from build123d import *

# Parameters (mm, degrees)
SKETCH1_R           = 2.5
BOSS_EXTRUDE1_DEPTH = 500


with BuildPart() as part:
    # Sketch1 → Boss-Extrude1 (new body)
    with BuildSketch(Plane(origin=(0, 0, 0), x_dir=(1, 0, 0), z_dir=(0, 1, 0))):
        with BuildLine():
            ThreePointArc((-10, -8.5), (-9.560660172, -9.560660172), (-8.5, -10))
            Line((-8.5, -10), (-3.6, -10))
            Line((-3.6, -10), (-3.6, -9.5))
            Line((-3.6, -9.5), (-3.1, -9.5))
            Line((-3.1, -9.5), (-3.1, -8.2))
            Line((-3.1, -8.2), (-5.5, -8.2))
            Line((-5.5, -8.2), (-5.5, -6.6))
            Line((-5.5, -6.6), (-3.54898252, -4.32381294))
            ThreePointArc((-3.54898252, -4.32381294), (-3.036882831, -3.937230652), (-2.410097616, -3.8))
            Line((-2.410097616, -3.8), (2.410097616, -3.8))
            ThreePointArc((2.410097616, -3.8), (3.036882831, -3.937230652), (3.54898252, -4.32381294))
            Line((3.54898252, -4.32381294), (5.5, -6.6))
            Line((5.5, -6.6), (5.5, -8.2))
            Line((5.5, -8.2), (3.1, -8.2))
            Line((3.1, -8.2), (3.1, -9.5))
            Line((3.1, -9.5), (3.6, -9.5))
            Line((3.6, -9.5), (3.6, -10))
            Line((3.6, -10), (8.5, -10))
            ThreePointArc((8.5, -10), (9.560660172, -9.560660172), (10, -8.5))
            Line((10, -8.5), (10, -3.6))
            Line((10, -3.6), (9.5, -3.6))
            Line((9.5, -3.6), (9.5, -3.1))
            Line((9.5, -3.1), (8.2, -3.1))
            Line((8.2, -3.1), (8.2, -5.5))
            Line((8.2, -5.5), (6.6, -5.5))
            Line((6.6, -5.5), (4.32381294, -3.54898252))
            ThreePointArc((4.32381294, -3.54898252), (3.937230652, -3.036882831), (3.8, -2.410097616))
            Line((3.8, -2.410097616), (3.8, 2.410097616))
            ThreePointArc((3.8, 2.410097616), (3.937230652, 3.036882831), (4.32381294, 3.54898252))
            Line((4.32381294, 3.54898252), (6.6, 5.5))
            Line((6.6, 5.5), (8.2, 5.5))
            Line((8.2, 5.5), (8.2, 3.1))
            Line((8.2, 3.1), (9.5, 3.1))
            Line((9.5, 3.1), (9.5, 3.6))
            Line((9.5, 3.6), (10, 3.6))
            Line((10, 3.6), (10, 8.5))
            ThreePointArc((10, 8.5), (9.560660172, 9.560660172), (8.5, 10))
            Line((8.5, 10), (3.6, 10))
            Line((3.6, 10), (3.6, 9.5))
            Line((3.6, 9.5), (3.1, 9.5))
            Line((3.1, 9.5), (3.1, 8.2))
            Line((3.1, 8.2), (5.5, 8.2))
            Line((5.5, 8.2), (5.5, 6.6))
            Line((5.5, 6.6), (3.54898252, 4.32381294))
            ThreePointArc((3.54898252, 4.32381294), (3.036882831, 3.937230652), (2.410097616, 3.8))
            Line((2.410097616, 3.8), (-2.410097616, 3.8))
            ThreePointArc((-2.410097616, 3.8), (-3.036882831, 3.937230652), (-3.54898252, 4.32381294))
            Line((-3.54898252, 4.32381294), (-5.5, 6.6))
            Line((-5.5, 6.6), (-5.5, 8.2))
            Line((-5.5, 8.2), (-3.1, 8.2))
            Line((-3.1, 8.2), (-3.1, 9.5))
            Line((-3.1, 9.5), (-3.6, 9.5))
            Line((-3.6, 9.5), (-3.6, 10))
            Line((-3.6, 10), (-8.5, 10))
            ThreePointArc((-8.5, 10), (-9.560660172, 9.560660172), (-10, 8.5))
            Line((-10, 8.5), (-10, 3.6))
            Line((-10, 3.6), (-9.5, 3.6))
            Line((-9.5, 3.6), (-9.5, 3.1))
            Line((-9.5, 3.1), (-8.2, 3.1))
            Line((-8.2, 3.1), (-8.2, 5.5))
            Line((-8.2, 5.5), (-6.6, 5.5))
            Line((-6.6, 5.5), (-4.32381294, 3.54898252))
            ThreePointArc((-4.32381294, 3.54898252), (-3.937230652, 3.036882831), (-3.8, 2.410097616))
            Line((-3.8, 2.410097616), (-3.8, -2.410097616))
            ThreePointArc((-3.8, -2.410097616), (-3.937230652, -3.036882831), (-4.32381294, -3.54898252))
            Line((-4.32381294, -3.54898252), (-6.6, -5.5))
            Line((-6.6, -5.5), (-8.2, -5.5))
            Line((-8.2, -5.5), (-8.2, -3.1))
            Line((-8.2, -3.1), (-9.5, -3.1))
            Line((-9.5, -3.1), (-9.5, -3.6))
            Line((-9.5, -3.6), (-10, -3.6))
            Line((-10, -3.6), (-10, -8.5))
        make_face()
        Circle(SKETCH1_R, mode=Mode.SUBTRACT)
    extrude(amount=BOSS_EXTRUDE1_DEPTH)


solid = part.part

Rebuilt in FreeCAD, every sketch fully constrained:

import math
import FreeCAD as App
import Part
import Sketcher
Q = App.Units.Quantity

doc = App.newDocument("Part")
params = doc.addObject("Spreadsheet::Sheet", "Params")
for row, (alias, value) in enumerate([
    ("sketch1_diameter", "5 mm"),
    ("sketch1_radius", "1.5 mm"),
    ("sketch1_width", "4.9 mm"),
    ("sketch1_width2", "0.5 mm"),
    ("sketch1_width3", "2.4 mm"),
    ("pad1_length", "500 mm"),
], start=1):
    params.set(f"A{row}", alias)
    params.set(f"B{row}", "=" + value)
    params.setAlias(f"B{row}", alias)

body = doc.addObject("PartDesign::Body", "Body")

sketch1 = doc.addObject("Sketcher::SketchObject", "Sketch")
body.addObject(sketch1)
sketch1.AttachmentSupport = (doc.XZ_Plane, [""])
sketch1.MapMode = "FlatFace"
sketch1.addGeometry([
    Part.ArcOfCircle(Part.Circle(App.Vector(-8.5, 8.5, 0), App.Vector(0, 0, 1), 1.5), math.radians(90), math.radians(180)),
    Part.LineSegment(App.Vector(-8.5, 10, 0), App.Vector(-3.6, 10, 0)),
    Part.LineSegment(App.Vector(-3.6, 10, 0), App.Vector(-3.6, 9.5, 0)),
    Part.LineSegment(App.Vector(-3.6, 9.5, 0), App.Vector(-3.1, 9.5, 0)),
    Part.LineSegment(App.Vector(-3.1, 9.5, 0), App.Vector(-3.1, 8.2, 0)),
    Part.LineSegment(App.Vector(-3.1, 8.2, 0), App.Vector(-5.5, 8.2, 0)),
    Part.LineSegment(App.Vector(-5.5, 8.2, 0), App.Vector(-5.5, 6.6, 0)),
    Part.LineSegment(App.Vector(-5.5, 6.6, 0), App.Vector(-3.5, 4.3, 0)),
    Part.ArcOfCircle(Part.Circle(App.Vector(-2.4, 5.3, 0), App.Vector(0, 0, 1), 1.5), math.radians(-139), math.radians(-90)),
    Part.LineSegment(App.Vector(-2.4, 3.8, 0), App.Vector(2.4, 3.8, 0)),
    Part.ArcOfCircle(Part.Circle(App.Vector(2.4, 5.3, 0), App.Vector(0, 0, 1), 1.5), math.radians(-90), math.radians(-41)),
    Part.LineSegment(App.Vector(3.5, 4.3, 0), App.Vector(5.5, 6.6, 0)),
    Part.LineSegment(App.Vector(5.5, 6.6, 0), App.Vector(5.5, 8.2, 0)),
    Part.LineSegment(App.Vector(5.5, 8.2, 0), App.Vector(3.1, 8.2, 0)),
    Part.LineSegment(App.Vector(3.1, 8.2, 0), App.Vector(3.1, 9.5, 0)),
    Part.LineSegment(App.Vector(3.1, 9.5, 0), App.Vector(3.6, 9.5, 0)),
    Part.LineSegment(App.Vector(3.6, 9.5, 0), App.Vector(3.6, 10, 0)),
    Part.LineSegment(App.Vector(3.6, 10, 0), App.Vector(8.5, 10, 0)),
    Part.ArcOfCircle(Part.Circle(App.Vector(8.5, 8.5, 0), App.Vector(0, 0, 1), 1.5), math.radians(0), math.radians(90)),
    Part.LineSegment(App.Vector(10, 8.5, 0), App.Vector(10, 3.6, 0)),
    Part.LineSegment(App.Vector(10, 3.6, 0), App.Vector(9.5, 3.6, 0)),
    Part.LineSegment(App.Vector(9.5, 3.6, 0), App.Vector(9.5, 3.1, 0)),
    Part.LineSegment(App.Vector(9.5, 3.1, 0), App.Vector(8.2, 3.1, 0)),
    Part.LineSegment(App.Vector(8.2, 3.1, 0), App.Vector(8.2, 5.5, 0)),
    Part.LineSegment(App.Vector(8.2, 5.5, 0), App.Vector(6.6, 5.5, 0)),
    Part.LineSegment(App.Vector(6.6, 5.5, 0), App.Vector(4.3, 3.5, 0)),
    Part.ArcOfCircle(Part.Circle(App.Vector(5.3, 2.4, 0), App.Vector(0, 0, 1), 1.5), math.radians(131), math.radians(180)),
    Part.LineSegment(App.Vector(3.8, 2.4, 0), App.Vector(3.8, -2.4, 0)),
    Part.ArcOfCircle(Part.Circle(App.Vector(5.3, -2.4, 0), App.Vector(0, 0, 1), 1.5), math.radians(180), math.radians(229)),
    Part.LineSegment(App.Vector(4.3, -3.5, 0), App.Vector(6.6, -5.5, 0)),
    Part.LineSegment(App.Vector(6.6, -5.5, 0), App.Vector(8.2, -5.5, 0)),
    Part.LineSegment(App.Vector(8.2, -5.5, 0), App.Vector(8.2, -3.1, 0)),
    Part.LineSegment(App.Vector(8.2, -3.1, 0), App.Vector(9.5, -3.1, 0)),
    Part.LineSegment(App.Vector(9.5, -3.1, 0), App.Vector(9.5, -3.6, 0)),
    Part.LineSegment(App.Vector(9.5, -3.6, 0), App.Vector(10, -3.6, 0)),
    Part.LineSegment(App.Vector(10, -3.6, 0), App.Vector(10, -8.5, 0)),
    Part.ArcOfCircle(Part.Circle(App.Vector(8.5, -8.5, 0), App.Vector(0, 0, 1), 1.5), math.radians(-90), math.radians(0)),
    Part.LineSegment(App.Vector(8.5, -10, 0), App.Vector(3.6, -10, 0)),
    Part.LineSegment(App.Vector(3.6, -10, 0), App.Vector(3.6, -9.5, 0)),
    Part.LineSegment(App.Vector(3.6, -9.5, 0), App.Vector(3.1, -9.5, 0)),
    Part.LineSegment(App.Vector(3.1, -9.5, 0), App.Vector(3.1, -8.2, 0)),
    Part.LineSegment(App.Vector(3.1, -8.2, 0), App.Vector(5.5, -8.2, 0)),
    Part.LineSegment(App.Vector(5.5, -8.2, 0), App.Vector(5.5, -6.6, 0)),
    Part.LineSegment(App.Vector(5.5, -6.6, 0), App.Vector(3.5, -4.3, 0)),
    Part.ArcOfCircle(Part.Circle(App.Vector(2.4, -5.3, 0), App.Vector(0, 0, 1), 1.5), math.radians(41), math.radians(90)),
    Part.LineSegment(App.Vector(2.4, -3.8, 0), App.Vector(-2.4, -3.8, 0)),
    Part.ArcOfCircle(Part.Circle(App.Vector(-2.4, -5.3, 0), App.Vector(0, 0, 1), 1.5), math.radians(90), math.radians(139)),
    Part.LineSegment(App.Vector(-3.5, -4.3, 0), App.Vector(-5.5, -6.6, 0)),
    Part.LineSegment(App.Vector(-5.5, -6.6, 0), App.Vector(-5.5, -8.2, 0)),
    Part.LineSegment(App.Vector(-5.5, -8.2, 0), App.Vector(-3.1, -8.2, 0)),
    Part.LineSegment(App.Vector(-3.1, -8.2, 0), App.Vector(-3.1, -9.5, 0)),
    Part.LineSegment(App.Vector(-3.1, -9.5, 0), App.Vector(-3.6, -9.5, 0)),
    Part.LineSegment(App.Vector(-3.6, -9.5, 0), App.Vector(-3.6, -10, 0)),
    Part.LineSegment(App.Vector(-3.6, -10, 0), App.Vector(-8.5, -10, 0)),
    Part.ArcOfCircle(Part.Circle(App.Vector(-8.5, -8.5, 0), App.Vector(0, 0, 1), 1.5), math.radians(180), math.radians(270)),
    Part.LineSegment(App.Vector(-10, -8.5, 0), App.Vector(-10, -3.6, 0)),
    Part.LineSegment(App.Vector(-10, -3.6, 0), App.Vector(-9.5, -3.6, 0)),
    Part.LineSegment(App.Vector(-9.5, -3.6, 0), App.Vector(-9.5, -3.1, 0)),
    Part.LineSegment(App.Vector(-9.5, -3.1, 0), App.Vector(-8.2, -3.1, 0)),
    Part.LineSegment(App.Vector(-8.2, -3.1, 0), App.Vector(-8.2, -5.5, 0)),
    Part.LineSegment(App.Vector(-8.2, -5.5, 0), App.Vector(-6.6, -5.5, 0)),
    Part.LineSegment(App.Vector(-6.6, -5.5, 0), App.Vector(-4.3, -3.5, 0)),
    Part.ArcOfCircle(Part.Circle(App.Vector(-5.3, -2.4, 0), App.Vector(0, 0, 1), 1.5), math.radians(-49), math.radians(0)),
    Part.LineSegment(App.Vector(-3.8, -2.4, 0), App.Vector(-3.8, 2.4, 0)),
    Part.ArcOfCircle(Part.Circle(App.Vector(-5.3, 2.4, 0), App.Vector(0, 0, 1), 1.5), math.radians(0), math.radians(49)),
    Part.LineSegment(App.Vector(-4.3, 3.5, 0), App.Vector(-6.6, 5.5, 0)),
    Part.LineSegment(App.Vector(-6.6, 5.5, 0), App.Vector(-8.2, 5.5, 0)),
    Part.LineSegment(App.Vector(-8.2, 5.5, 0), App.Vector(-8.2, 3.1, 0)),
    Part.LineSegment(App.Vector(-8.2, 3.1, 0), App.Vector(-9.5, 3.1, 0)),
    Part.LineSegment(App.Vector(-9.5, 3.1, 0), App.Vector(-9.5, 3.6, 0)),
    Part.LineSegment(App.Vector(-9.5, 3.6, 0), App.Vector(-10, 3.6, 0)),
    Part.LineSegment(App.Vector(-10, 3.6, 0), App.Vector(-10, 8.5, 0)),
    Part.Circle(App.Vector(0, 0, 0), App.Vector(0, 0, 1), 2.5),
], False)
sketch1.addConstraint([
    Sketcher.Constraint("Tangent", 0, 1, 1, 1),
    Sketcher.Constraint("Coincident", 1, 2, 2, 1),
    Sketcher.Constraint("Coincident", 2, 2, 3, 1),
    Sketcher.Constraint("Coincident", 3, 2, 4, 1),
    Sketcher.Constraint("Coincident", 4, 2, 5, 1),
    Sketcher.Constraint("Coincident", 5, 2, 6, 1),
    Sketcher.Constraint("Coincident", 6, 2, 7, 1),
    Sketcher.Constraint("Tangent", 7, 2, 8, 1),
    Sketcher.Constraint("Tangent", 8, 2, 9, 1),
    Sketcher.Constraint("Tangent", 9, 2, 10, 1),
    Sketcher.Constraint("Tangent", 10, 2, 11, 1),
    Sketcher.Constraint("Coincident", 11, 2, 12, 1),
    Sketcher.Constraint("Coincident", 12, 2, 13, 1),
    Sketcher.Constraint("Coincident", 13, 2, 14, 1),
    Sketcher.Constraint("Coincident", 14, 2, 15, 1),
    Sketcher.Constraint("Coincident", 15, 2, 16, 1),
    Sketcher.Constraint("Coincident", 16, 2, 17, 1),
    Sketcher.Constraint("Tangent", 17, 2, 18, 2),
    Sketcher.Constraint("Tangent", 18, 1, 19, 1),
    Sketcher.Constraint("Coincident", 19, 2, 20, 1),
    Sketcher.Constraint("Coincident", 20, 2, 21, 1),
    Sketcher.Constraint("Coincident", 21, 2, 22, 1),
    Sketcher.Constraint("Coincident", 22, 2, 23, 1),
    Sketcher.Constraint("Coincident", 23, 2, 24, 1),
    Sketcher.Constraint("Coincident", 24, 2, 25, 1),
    Sketcher.Constraint("Tangent", 25, 2, 26, 1),
    Sketcher.Constraint("Tangent", 26, 2, 27, 1),
    Sketcher.Constraint("Tangent", 27, 2, 28, 1),
    Sketcher.Constraint("Tangent", 28, 2, 29, 1),
    Sketcher.Constraint("Coincident", 29, 2, 30, 1),
    Sketcher.Constraint("Coincident", 30, 2, 31, 1),
    Sketcher.Constraint("Coincident", 31, 2, 32, 1),
    Sketcher.Constraint("Coincident", 32, 2, 33, 1),
    Sketcher.Constraint("Coincident", 33, 2, 34, 1),
    Sketcher.Constraint("Coincident", 34, 2, 35, 1),
    Sketcher.Constraint("Tangent", 35, 2, 36, 2),
    Sketcher.Constraint("Tangent", 36, 1, 37, 1),
    Sketcher.Constraint("Coincident", 37, 2, 38, 1),
    Sketcher.Constraint("Coincident", 38, 2, 39, 1),
    Sketcher.Constraint("Coincident", 39, 2, 40, 1),
    Sketcher.Constraint("Coincident", 40, 2, 41, 1),
    Sketcher.Constraint("Coincident", 41, 2, 42, 1),
    Sketcher.Constraint("Coincident", 42, 2, 43, 1),
    Sketcher.Constraint("Tangent", 43, 2, 44, 1),
    Sketcher.Constraint("Tangent", 44, 2, 45, 1),
    Sketcher.Constraint("Tangent", 45, 2, 46, 1),
    Sketcher.Constraint("Tangent", 46, 2, 47, 1),
    Sketcher.Constraint("Coincident", 47, 2, 48, 1),
    Sketcher.Constraint("Coincident", 48, 2, 49, 1),
    Sketcher.Constraint("Coincident", 49, 2, 50, 1),
    Sketcher.Constraint("Coincident", 50, 2, 51, 1),
    Sketcher.Constraint("Coincident", 51, 2, 52, 1),
    Sketcher.Constraint("Coincident", 52, 2, 53, 1),
    Sketcher.Constraint("Tangent", 53, 2, 54, 2),
    Sketcher.Constraint("Tangent", 54, 1, 55, 1),
    Sketcher.Constraint("Coincident", 55, 2, 56, 1),
    Sketcher.Constraint("Coincident", 56, 2, 57, 1),
    Sketcher.Constraint("Coincident", 57, 2, 58, 1),
    Sketcher.Constraint("Coincident", 58, 2, 59, 1),
    Sketcher.Constraint("Coincident", 59, 2, 60, 1),
    Sketcher.Constraint("Coincident", 60, 2, 61, 1),
    Sketcher.Constraint("Tangent", 61, 2, 62, 1),
    Sketcher.Constraint("Tangent", 62, 2, 63, 1),
    Sketcher.Constraint("Tangent", 63, 2, 64, 1),
    Sketcher.Constraint("Tangent", 64, 2, 65, 1),
    Sketcher.Constraint("Coincident", 65, 2, 66, 1),
    Sketcher.Constraint("Coincident", 66, 2, 67, 1),
    Sketcher.Constraint("Coincident", 67, 2, 68, 1),
    Sketcher.Constraint("Coincident", 68, 2, 69, 1),
    Sketcher.Constraint("Coincident", 69, 2, 70, 1),
    Sketcher.Constraint("Coincident", 70, 2, 71, 1),
    Sketcher.Constraint("Tangent", 71, 2, 0, 2),
    Sketcher.Constraint("Horizontal", 1),
    Sketcher.Constraint("Vertical", 2),
    Sketcher.Constraint("Horizontal", 3),
    Sketcher.Constraint("Vertical", 4),
    Sketcher.Constraint("Horizontal", 5),
    Sketcher.Constraint("Vertical", 6),
    Sketcher.Constraint("Horizontal", 9),
    Sketcher.Constraint("Vertical", 12),
    Sketcher.Constraint("Horizontal", 13),
    Sketcher.Constraint("Vertical", 14),
    Sketcher.Constraint("Horizontal", 15),
    Sketcher.Constraint("Vertical", 16),
    Sketcher.Constraint("Horizontal", 17),
    Sketcher.Constraint("Vertical", 19),
    Sketcher.Constraint("Horizontal", 20),
    Sketcher.Constraint("Vertical", 21),
    Sketcher.Constraint("Horizontal", 22),
    Sketcher.Constraint("Vertical", 23),
    Sketcher.Constraint("Horizontal", 24),
    Sketcher.Constraint("Vertical", 27),
    Sketcher.Constraint("Horizontal", 30),
    Sketcher.Constraint("Vertical", 31),
    Sketcher.Constraint("Horizontal", 32),
    Sketcher.Constraint("Vertical", 33),
    Sketcher.Constraint("Horizontal", 34),
    Sketcher.Constraint("Vertical", 35),
    Sketcher.Constraint("Horizontal", 37),
    Sketcher.Constraint("Vertical", 38),
    Sketcher.Constraint("Horizontal", 39),
    Sketcher.Constraint("Vertical", 40),
    Sketcher.Constraint("Horizontal", 41),
    Sketcher.Constraint("Vertical", 42),
    Sketcher.Constraint("Horizontal", 45),
    Sketcher.Constraint("Vertical", 48),
    Sketcher.Constraint("Horizontal", 49),
    Sketcher.Constraint("Vertical", 50),
    Sketcher.Constraint("Horizontal", 51),
    Sketcher.Constraint("Vertical", 52),
    Sketcher.Constraint("Horizontal", 53),
    Sketcher.Constraint("Vertical", 55),
    Sketcher.Constraint("Horizontal", 56),
    Sketcher.Constraint("Vertical", 57),
    Sketcher.Constraint("Horizontal", 58),
    Sketcher.Constraint("Vertical", 59),
    Sketcher.Constraint("Horizontal", 60),
    Sketcher.Constraint("Vertical", 63),
    Sketcher.Constraint("Horizontal", 66),
    Sketcher.Constraint("Vertical", 67),
    Sketcher.Constraint("Horizontal", 68),
    Sketcher.Constraint("Vertical", 69),
    Sketcher.Constraint("Horizontal", 70),
    Sketcher.Constraint("Vertical", 71),
    Sketcher.Constraint("Coincident", 72, 3, -1, 1),
    Sketcher.Constraint("Equal", 0, 8),
    Sketcher.Constraint("Equal", 8, 10),
    Sketcher.Constraint("Equal", 10, 18),
    Sketcher.Constraint("Equal", 18, 26),
    Sketcher.Constraint("Equal", 26, 28),
    Sketcher.Constraint("Equal", 28, 36),
    Sketcher.Constraint("Equal", 36, 44),
    Sketcher.Constraint("Equal", 44, 46),
    Sketcher.Constraint("Equal", 46, 54),
    Sketcher.Constraint("Equal", 54, 62),
    Sketcher.Constraint("Equal", 62, 64),
    Sketcher.Constraint("Symmetric", 0, 3, 36, 3, -1, 1),
    Sketcher.Constraint("Symmetric", 8, 3, 44, 3, -1, 1),
    Sketcher.Constraint("Symmetric", 18, 3, 54, 3, -1, 1),
    Sketcher.Constraint("Symmetric", 26, 3, 62, 3, -1, 1),
    Sketcher.Constraint("Symmetric", 2, 2, 38, 2, -1, 1),
    Sketcher.Constraint("Symmetric", 4, 2, 40, 2, -1, 1),
    Sketcher.Constraint("Symmetric", 6, 2, 42, 2, -1, 1),
    Sketcher.Constraint("Symmetric", 10, 2, 46, 2, -1, 1),
    Sketcher.Constraint("Symmetric", 12, 2, 48, 2, -1, 1),
    Sketcher.Constraint("Symmetric", 14, 2, 50, 2, -1, 1),
    Sketcher.Constraint("Symmetric", 20, 2, 56, 2, -1, 1),
    Sketcher.Constraint("Symmetric", 22, 2, 58, 2, -1, 1),
    Sketcher.Constraint("Symmetric", 24, 2, 60, 2, -1, 1),
    Sketcher.Constraint("Symmetric", 28, 2, 64, 2, -1, 1),
    Sketcher.Constraint("Symmetric", 30, 2, 66, 2, -1, 1),
    Sketcher.Constraint("Symmetric", 32, 2, 68, 2, -1, 1),
    Sketcher.Constraint("Symmetric", 0, 3, 18, 3, -2),
    Sketcher.Constraint("Symmetric", 7, 2, 10, 2, -2),
    Sketcher.Constraint("Symmetric", 5, 2, 12, 2, -2),
    Sketcher.Constraint("Symmetric", 3, 2, 14, 2, -2),
    Sketcher.Constraint("Symmetric", 33, 2, 56, 2, -2),
    Sketcher.Constraint("Symmetric", 31, 2, 58, 2, -2),
    Sketcher.Constraint("Symmetric", 29, 2, 60, 2, -2),
    Sketcher.Constraint("Perpendicular", 7, 25),
    Sketcher.Constraint("Perpendicular", 11, 29),
    Sketcher.Constraint("Horizontal", 20, 2, 69, 2),
    Sketcher.Constraint("Vertical", 16, 2, 37, 2),
    Sketcher.Constraint("Vertical", 2, 2, 51, 2),
    Sketcher.Constraint("Equal", 15, 20),
    Sketcher.Constraint("Equal", 70, 2),
    Sketcher.Constraint("Equal", 68, 4),
    Sketcher.Constraint("Equal", 66, 6),
    Sketcher.Constraint("Equal", 53, 19),
    Sketcher.Constraint("Equal", 16, 21),
    Sketcher.Constraint("Equal", 49, 23),
    Sketcher.Constraint("Equal", 45, 27),
    Sketcher.Constraint("Equal", 11, 25),
    Sketcher.Constraint("Diameter", 72, Q("5 mm")),
    Sketcher.Constraint("Radius", 0, Q("1.5 mm")),
    Sketcher.Constraint("DistanceX", 1, 1, 1, 2, Q("4.9 mm")),
    Sketcher.Constraint("DistanceX", 3, 1, 3, 2, Q("0.5 mm")),
    Sketcher.Constraint("DistanceX", 5, 2, 5, 1, Q("2.4 mm")),
    Sketcher.Constraint("DistanceX", 22, 2, 22, 1, Q("1.3 mm")),
    Sketcher.Constraint("DistanceX", 24, 2, 24, 1, Q("1.6 mm")),
    Sketcher.Constraint("DistanceY", -1, 1, 0, 1, Q("10 mm")),
    Sketcher.Constraint("DistanceY", -1, 1, 8, 3, Q("5.3 mm")),
    Sketcher.Constraint("DistanceX", 9, 1, 9, 2, Q("4.820195 mm")),
])
sketch1.setExpression("Constraints[173]", "Params.sketch1_diameter")
sketch1.setExpression("Constraints[174]", "Params.sketch1_radius")
sketch1.setExpression("Constraints[175]", "Params.sketch1_width")
sketch1.setExpression("Constraints[176]", "Params.sketch1_width2")
sketch1.setExpression("Constraints[177]", "Params.sketch1_width3")
pad1 = doc.addObject("PartDesign::Pad", "Pad")
body.addObject(pad1)
pad1.Profile = sketch1
pad1.setExpression("Length", "Params.pad1_length")
pad1.Reversed = True

doc.recompute()
